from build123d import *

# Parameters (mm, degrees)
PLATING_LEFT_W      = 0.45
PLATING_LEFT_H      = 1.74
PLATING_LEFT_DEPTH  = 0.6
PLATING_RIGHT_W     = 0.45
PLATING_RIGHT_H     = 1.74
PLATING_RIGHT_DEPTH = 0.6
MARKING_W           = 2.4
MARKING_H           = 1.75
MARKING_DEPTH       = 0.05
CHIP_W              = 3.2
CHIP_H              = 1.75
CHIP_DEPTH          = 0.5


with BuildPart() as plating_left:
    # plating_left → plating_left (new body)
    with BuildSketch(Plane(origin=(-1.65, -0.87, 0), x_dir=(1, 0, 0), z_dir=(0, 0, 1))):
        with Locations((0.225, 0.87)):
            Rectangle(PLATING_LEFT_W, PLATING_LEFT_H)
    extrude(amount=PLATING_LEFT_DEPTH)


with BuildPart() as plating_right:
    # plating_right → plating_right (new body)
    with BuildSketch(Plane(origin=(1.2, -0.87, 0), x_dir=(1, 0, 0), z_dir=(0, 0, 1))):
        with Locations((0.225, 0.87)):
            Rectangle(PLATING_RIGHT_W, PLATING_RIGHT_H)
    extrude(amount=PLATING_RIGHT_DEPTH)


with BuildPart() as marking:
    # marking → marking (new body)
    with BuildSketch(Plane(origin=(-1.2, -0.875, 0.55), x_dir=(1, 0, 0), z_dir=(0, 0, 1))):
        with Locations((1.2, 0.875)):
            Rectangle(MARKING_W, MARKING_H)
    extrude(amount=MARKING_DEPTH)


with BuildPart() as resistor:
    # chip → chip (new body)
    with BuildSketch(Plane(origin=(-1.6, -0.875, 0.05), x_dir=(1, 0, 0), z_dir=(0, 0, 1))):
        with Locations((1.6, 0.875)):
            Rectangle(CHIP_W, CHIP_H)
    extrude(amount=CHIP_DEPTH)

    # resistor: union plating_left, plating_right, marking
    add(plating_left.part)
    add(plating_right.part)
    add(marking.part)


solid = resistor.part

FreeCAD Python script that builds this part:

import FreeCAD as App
import Part
import Sketcher
Q = App.Units.Quantity

doc = App.newDocument("Part")
body = doc.addObject("PartDesign::Body", "Body")

sketch1 = doc.addObject("Sketcher::SketchObject", "Sketch")
body.addObject(sketch1)
sketch1.AttachmentSupport = (doc.XY_Plane, [""])
sketch1.MapMode = "FlatFace"
sketch1.addGeometry(Part.LineSegment(App.Vector(-1.65, 0.87, 0), App.Vector(-1.65, -0.87, 0)), False)
sketch1.addGeometry(Part.LineSegment(App.Vector(-1.65, -0.87, 0), App.Vector(-1.2, -0.87, 0)), False)
sketch1.addGeometry(Part.LineSegment(App.Vector(-1.2, -0.87, 0), App.Vector(-1.2, 0.87, 0)), False)
sketch1.addGeometry(Part.LineSegment(App.Vector(-1.2, 0.87, 0), App.Vector(-1.65, 0.87, 0)), False)
sketch1.addConstraint(Sketcher.Constraint("Coincident", 0, 2, 1, 1))
sketch1.addConstraint(Sketcher.Constraint("Coincident", 1, 2, 2, 1))
sketch1.addConstraint(Sketcher.Constraint("Coincident", 2, 2, 3, 1))
sketch1.addConstraint(Sketcher.Constraint("Coincident", 3, 2, 0, 1))
sketch1.addConstraint(Sketcher.Constraint("Vertical", 0))
sketch1.addConstraint(Sketcher.Constraint("Horizontal", 1))
sketch1.addConstraint(Sketcher.Constraint("Vertical", 2))
sketch1.addConstraint(Sketcher.Constraint("Horizontal", 3))
sketch1.addConstraint(Sketcher.Constraint("DistanceX", 1, 1, 1, 2, Q("0.45 mm")))
sketch1.addConstraint(Sketcher.Constraint("DistanceY", 0, 2, 0, 1, Q("1.74 mm")))
sketch1.addConstraint(Sketcher.Constraint("DistanceX", 1, 2, -1, 1, Q("1.2 mm")))
sketch1.addConstraint(Sketcher.Constraint("DistanceY", 0, 2, -1, 1, Q("0.87 mm")))
pad1 = doc.addObject("PartDesign::Pad", "Pad")
body.addObject(pad1)
pad1.Profile = sketch1
pad1.Length = 0.6
body2 = doc.addObject("PartDesign::Body", "Body001")

sketch2 = doc.addObject("Sketcher::SketchObject", "Sketch001")
body2.addObject(sketch2)
sketch2.AttachmentSupport = (doc.getObject("XY_Plane001"), [""])
sketch2.MapMode = "FlatFace"
sketch2.addGeometry(Part.LineSegment(App.Vector(1.2, 0.87, 0), App.Vector(1.2, -0.87, 0)), False)
sketch2.addGeometry(Part.LineSegment(App.Vector(1.2, -0.87, 0), App.Vector(1.65, -0.87, 0)), False)
sketch2.addGeometry(Part.LineSegment(App.Vector(1.65, -0.87, 0), App.Vector(1.65, 0.87, 0)), False)
sketch2.addGeometry(Part.LineSegment(App.Vector(1.65, 0.87, 0), App.Vector(1.2, 0.87, 0)), False)
sketch2.addConstraint(Sketcher.Constraint("Coincident", 0, 2, 1, 1))
sketch2.addConstraint(Sketcher.Constraint("Coincident", 1, 2, 2, 1))
sketch2.addConstraint(Sketcher.Constraint("Coincident", 2, 2, 3, 1))
sketch2.addConstraint(Sketcher.Constraint("Coincident", 3, 2, 0, 1))
sketch2.addConstraint(Sketcher.Constraint("Vertical", 0))
sketch2.addConstraint(Sketcher.Constraint("Horizontal", 1))
sketch2.addConstraint(Sketcher.Constraint("Vertical", 2))
sketch2.addConstraint(Sketcher.Constraint("Horizontal", 3))
sketch2.addConstraint(Sketcher.Constraint("DistanceX", 1, 1, 1, 2, Q("0.45 mm")))
sketch2.addConstraint(Sketcher.Constraint("DistanceY", 0, 2, 0, 1, Q("1.74 mm")))
sketch2.addConstraint(Sketcher.Constraint("DistanceX", -1, 1, 0, 2, Q("1.2 mm")))
sketch2.addConstraint(Sketcher.Constraint("DistanceY", 0, 2, -1, 1, Q("0.87 mm")))
pad2 = doc.addObject("PartDesign::Pad", "Pad001")
body2.addObject(pad2)
pad2.Profile = sketch2
pad2.Length = 0.6
body3 = doc.addObject("PartDesign::Body", "Body002")

sketch3 = doc.addObject("Sketcher::SketchObject", "Sketch002")
body3.addObject(sketch3)
sketch3.AttachmentSupport = (doc.getObject("XY_Plane002"), [""])
sketch3.MapMode = "FlatFace"
sketch3.AttachmentOffset = App.Placement(App.Vector(0, 0, 0.55), App.Rotation())
sketch3.addGeometry(Part.LineSegment(App.Vector(-1.2, 0.875, 0), App.Vector(-1.2, -0.875, 0)), False)
sketch3.addGeometry(Part.LineSegment(App.Vector(-1.2, -0.875, 0), App.Vector(1.2, -0.875, 0)), False)
sketch3.addGeometry(Part.LineSegment(App.Vector(1.2, -0.875, 0), App.Vector(1.2, 0.875, 0)), False)
sketch3.addGeometry(Part.LineSegment(App.Vector(1.2, 0.875, 0), App.Vector(-1.2, 0.875, 0)), False)
sketch3.addConstraint(Sketcher.Constraint("Coincident", 0, 2, 1, 1))
sketch3.addConstraint(Sketcher.Constraint("Coincident", 1, 2, 2, 1))
sketch3.addConstraint(Sketcher.Constraint("Coincident", 2, 2, 3, 1))
sketch3.addConstraint(Sketcher.Constraint("Coincident", 3, 2, 0, 1))
sketch3.addConstraint(Sketcher.Constraint("Vertical", 0))
sketch3.addConstraint(Sketcher.Constraint("Horizontal", 1))
sketch3.addConstraint(Sketcher.Constraint("Vertical", 2))
sketch3.addConstraint(Sketcher.Constraint("Horizontal", 3))
sketch3.addConstraint(Sketcher.Constraint("Symmetric", 0, 2, 2, 2, -1, 1))
sketch3.addConstraint(Sketcher.Constraint("DistanceX", 1, 1, 1, 2, Q("2.4 mm")))
sketch3.addConstraint(Sketcher.Constraint("DistanceY", 0, 2, 0, 1, Q("1.75 mm")))
pad3 = doc.addObject("PartDesign::Pad", "Pad002")
body3.addObject(pad3)
pad3.Profile = sketch3
pad3.Length = 0.05
body4 = doc.addObject("PartDesign::Body", "Body003")

sketch4 = doc.addObject("Sketcher::SketchObject", "Sketch003")
body4.addObject(sketch4)
sketch4.AttachmentSupport = (doc.getObject("XY_Plane003"), [""])
sketch4.MapMode = "FlatFace"
sketch4.AttachmentOffset = App.Placement(App.Vector(0, 0, 0.05), App.Rotation())
sketch4.addGeometry(Part.LineSegment(App.Vector(-1.6, 0.875, 0), App.Vector(-1.6, -0.875, 0)), False)
sketch4.addGeometry(Part.LineSegment(App.Vector(-1.6, -0.875, 0), App.Vector(1.6, -0.875, 0)), False)
sketch4.addGeometry(Part.LineSegment(App.Vector(1.6, -0.875, 0), App.Vector(1.6, 0.875, 0)), False)
sketch4.addGeometry(Part.LineSegment(App.Vector(1.6, 0.875, 0), App.Vector(-1.6, 0.875, 0)), False)
sketch4.addConstraint(Sketcher.Constraint("Coincident", 0, 2, 1, 1))
sketch4.addConstraint(Sketcher.Constraint("Coincident", 1, 2, 2, 1))
sketch4.addConstraint(Sketcher.Constraint("Coincident", 2, 2, 3, 1))
sketch4.addConstraint(Sketcher.Constraint("Coincident", 3, 2, 0, 1))
sketch4.addConstraint(Sketcher.Constraint("Vertical", 0))
sketch4.addConstraint(Sketcher.Constraint("Horizontal", 1))
sketch4.addConstraint(Sketcher.Constraint("Vertical", 2))
sketch4.addConstraint(Sketcher.Constraint("Horizontal", 3))
sketch4.addConstraint(Sketcher.Constraint("Symmetric", 0, 2, 2, 2, -1, 1))
sketch4.addConstraint(Sketcher.Constraint("DistanceX", 1, 1, 1, 2, Q("3.2 mm")))
sketch4.addConstraint(Sketcher.Constraint("DistanceY", 0, 2, 0, 1, Q("1.75 mm")))
pad4 = doc.addObject("PartDesign::Pad", "Pad003")
body4.addObject(pad4)
pad4.Profile = sketch4
pad4.Length = 0.5
doc.recompute()

boolean = doc.addObject("PartDesign::Boolean", "Boolean")
body4.addObject(boolean)
boolean.Type = "Fuse"
boolean.addObjects([body])
doc.recompute()

boolean2 = doc.addObject("PartDesign::Boolean", "Boolean001")
body4.addObject(boolean2)
boolean2.Type = "Fuse"
boolean2.addObjects([body2])
doc.recompute()

boolean3 = doc.addObject("PartDesign::Boolean", "Boolean002")
body4.addObject(boolean3)
boolean3.Type = "Fuse"
boolean3.addObjects([body3])

doc.recompute()
